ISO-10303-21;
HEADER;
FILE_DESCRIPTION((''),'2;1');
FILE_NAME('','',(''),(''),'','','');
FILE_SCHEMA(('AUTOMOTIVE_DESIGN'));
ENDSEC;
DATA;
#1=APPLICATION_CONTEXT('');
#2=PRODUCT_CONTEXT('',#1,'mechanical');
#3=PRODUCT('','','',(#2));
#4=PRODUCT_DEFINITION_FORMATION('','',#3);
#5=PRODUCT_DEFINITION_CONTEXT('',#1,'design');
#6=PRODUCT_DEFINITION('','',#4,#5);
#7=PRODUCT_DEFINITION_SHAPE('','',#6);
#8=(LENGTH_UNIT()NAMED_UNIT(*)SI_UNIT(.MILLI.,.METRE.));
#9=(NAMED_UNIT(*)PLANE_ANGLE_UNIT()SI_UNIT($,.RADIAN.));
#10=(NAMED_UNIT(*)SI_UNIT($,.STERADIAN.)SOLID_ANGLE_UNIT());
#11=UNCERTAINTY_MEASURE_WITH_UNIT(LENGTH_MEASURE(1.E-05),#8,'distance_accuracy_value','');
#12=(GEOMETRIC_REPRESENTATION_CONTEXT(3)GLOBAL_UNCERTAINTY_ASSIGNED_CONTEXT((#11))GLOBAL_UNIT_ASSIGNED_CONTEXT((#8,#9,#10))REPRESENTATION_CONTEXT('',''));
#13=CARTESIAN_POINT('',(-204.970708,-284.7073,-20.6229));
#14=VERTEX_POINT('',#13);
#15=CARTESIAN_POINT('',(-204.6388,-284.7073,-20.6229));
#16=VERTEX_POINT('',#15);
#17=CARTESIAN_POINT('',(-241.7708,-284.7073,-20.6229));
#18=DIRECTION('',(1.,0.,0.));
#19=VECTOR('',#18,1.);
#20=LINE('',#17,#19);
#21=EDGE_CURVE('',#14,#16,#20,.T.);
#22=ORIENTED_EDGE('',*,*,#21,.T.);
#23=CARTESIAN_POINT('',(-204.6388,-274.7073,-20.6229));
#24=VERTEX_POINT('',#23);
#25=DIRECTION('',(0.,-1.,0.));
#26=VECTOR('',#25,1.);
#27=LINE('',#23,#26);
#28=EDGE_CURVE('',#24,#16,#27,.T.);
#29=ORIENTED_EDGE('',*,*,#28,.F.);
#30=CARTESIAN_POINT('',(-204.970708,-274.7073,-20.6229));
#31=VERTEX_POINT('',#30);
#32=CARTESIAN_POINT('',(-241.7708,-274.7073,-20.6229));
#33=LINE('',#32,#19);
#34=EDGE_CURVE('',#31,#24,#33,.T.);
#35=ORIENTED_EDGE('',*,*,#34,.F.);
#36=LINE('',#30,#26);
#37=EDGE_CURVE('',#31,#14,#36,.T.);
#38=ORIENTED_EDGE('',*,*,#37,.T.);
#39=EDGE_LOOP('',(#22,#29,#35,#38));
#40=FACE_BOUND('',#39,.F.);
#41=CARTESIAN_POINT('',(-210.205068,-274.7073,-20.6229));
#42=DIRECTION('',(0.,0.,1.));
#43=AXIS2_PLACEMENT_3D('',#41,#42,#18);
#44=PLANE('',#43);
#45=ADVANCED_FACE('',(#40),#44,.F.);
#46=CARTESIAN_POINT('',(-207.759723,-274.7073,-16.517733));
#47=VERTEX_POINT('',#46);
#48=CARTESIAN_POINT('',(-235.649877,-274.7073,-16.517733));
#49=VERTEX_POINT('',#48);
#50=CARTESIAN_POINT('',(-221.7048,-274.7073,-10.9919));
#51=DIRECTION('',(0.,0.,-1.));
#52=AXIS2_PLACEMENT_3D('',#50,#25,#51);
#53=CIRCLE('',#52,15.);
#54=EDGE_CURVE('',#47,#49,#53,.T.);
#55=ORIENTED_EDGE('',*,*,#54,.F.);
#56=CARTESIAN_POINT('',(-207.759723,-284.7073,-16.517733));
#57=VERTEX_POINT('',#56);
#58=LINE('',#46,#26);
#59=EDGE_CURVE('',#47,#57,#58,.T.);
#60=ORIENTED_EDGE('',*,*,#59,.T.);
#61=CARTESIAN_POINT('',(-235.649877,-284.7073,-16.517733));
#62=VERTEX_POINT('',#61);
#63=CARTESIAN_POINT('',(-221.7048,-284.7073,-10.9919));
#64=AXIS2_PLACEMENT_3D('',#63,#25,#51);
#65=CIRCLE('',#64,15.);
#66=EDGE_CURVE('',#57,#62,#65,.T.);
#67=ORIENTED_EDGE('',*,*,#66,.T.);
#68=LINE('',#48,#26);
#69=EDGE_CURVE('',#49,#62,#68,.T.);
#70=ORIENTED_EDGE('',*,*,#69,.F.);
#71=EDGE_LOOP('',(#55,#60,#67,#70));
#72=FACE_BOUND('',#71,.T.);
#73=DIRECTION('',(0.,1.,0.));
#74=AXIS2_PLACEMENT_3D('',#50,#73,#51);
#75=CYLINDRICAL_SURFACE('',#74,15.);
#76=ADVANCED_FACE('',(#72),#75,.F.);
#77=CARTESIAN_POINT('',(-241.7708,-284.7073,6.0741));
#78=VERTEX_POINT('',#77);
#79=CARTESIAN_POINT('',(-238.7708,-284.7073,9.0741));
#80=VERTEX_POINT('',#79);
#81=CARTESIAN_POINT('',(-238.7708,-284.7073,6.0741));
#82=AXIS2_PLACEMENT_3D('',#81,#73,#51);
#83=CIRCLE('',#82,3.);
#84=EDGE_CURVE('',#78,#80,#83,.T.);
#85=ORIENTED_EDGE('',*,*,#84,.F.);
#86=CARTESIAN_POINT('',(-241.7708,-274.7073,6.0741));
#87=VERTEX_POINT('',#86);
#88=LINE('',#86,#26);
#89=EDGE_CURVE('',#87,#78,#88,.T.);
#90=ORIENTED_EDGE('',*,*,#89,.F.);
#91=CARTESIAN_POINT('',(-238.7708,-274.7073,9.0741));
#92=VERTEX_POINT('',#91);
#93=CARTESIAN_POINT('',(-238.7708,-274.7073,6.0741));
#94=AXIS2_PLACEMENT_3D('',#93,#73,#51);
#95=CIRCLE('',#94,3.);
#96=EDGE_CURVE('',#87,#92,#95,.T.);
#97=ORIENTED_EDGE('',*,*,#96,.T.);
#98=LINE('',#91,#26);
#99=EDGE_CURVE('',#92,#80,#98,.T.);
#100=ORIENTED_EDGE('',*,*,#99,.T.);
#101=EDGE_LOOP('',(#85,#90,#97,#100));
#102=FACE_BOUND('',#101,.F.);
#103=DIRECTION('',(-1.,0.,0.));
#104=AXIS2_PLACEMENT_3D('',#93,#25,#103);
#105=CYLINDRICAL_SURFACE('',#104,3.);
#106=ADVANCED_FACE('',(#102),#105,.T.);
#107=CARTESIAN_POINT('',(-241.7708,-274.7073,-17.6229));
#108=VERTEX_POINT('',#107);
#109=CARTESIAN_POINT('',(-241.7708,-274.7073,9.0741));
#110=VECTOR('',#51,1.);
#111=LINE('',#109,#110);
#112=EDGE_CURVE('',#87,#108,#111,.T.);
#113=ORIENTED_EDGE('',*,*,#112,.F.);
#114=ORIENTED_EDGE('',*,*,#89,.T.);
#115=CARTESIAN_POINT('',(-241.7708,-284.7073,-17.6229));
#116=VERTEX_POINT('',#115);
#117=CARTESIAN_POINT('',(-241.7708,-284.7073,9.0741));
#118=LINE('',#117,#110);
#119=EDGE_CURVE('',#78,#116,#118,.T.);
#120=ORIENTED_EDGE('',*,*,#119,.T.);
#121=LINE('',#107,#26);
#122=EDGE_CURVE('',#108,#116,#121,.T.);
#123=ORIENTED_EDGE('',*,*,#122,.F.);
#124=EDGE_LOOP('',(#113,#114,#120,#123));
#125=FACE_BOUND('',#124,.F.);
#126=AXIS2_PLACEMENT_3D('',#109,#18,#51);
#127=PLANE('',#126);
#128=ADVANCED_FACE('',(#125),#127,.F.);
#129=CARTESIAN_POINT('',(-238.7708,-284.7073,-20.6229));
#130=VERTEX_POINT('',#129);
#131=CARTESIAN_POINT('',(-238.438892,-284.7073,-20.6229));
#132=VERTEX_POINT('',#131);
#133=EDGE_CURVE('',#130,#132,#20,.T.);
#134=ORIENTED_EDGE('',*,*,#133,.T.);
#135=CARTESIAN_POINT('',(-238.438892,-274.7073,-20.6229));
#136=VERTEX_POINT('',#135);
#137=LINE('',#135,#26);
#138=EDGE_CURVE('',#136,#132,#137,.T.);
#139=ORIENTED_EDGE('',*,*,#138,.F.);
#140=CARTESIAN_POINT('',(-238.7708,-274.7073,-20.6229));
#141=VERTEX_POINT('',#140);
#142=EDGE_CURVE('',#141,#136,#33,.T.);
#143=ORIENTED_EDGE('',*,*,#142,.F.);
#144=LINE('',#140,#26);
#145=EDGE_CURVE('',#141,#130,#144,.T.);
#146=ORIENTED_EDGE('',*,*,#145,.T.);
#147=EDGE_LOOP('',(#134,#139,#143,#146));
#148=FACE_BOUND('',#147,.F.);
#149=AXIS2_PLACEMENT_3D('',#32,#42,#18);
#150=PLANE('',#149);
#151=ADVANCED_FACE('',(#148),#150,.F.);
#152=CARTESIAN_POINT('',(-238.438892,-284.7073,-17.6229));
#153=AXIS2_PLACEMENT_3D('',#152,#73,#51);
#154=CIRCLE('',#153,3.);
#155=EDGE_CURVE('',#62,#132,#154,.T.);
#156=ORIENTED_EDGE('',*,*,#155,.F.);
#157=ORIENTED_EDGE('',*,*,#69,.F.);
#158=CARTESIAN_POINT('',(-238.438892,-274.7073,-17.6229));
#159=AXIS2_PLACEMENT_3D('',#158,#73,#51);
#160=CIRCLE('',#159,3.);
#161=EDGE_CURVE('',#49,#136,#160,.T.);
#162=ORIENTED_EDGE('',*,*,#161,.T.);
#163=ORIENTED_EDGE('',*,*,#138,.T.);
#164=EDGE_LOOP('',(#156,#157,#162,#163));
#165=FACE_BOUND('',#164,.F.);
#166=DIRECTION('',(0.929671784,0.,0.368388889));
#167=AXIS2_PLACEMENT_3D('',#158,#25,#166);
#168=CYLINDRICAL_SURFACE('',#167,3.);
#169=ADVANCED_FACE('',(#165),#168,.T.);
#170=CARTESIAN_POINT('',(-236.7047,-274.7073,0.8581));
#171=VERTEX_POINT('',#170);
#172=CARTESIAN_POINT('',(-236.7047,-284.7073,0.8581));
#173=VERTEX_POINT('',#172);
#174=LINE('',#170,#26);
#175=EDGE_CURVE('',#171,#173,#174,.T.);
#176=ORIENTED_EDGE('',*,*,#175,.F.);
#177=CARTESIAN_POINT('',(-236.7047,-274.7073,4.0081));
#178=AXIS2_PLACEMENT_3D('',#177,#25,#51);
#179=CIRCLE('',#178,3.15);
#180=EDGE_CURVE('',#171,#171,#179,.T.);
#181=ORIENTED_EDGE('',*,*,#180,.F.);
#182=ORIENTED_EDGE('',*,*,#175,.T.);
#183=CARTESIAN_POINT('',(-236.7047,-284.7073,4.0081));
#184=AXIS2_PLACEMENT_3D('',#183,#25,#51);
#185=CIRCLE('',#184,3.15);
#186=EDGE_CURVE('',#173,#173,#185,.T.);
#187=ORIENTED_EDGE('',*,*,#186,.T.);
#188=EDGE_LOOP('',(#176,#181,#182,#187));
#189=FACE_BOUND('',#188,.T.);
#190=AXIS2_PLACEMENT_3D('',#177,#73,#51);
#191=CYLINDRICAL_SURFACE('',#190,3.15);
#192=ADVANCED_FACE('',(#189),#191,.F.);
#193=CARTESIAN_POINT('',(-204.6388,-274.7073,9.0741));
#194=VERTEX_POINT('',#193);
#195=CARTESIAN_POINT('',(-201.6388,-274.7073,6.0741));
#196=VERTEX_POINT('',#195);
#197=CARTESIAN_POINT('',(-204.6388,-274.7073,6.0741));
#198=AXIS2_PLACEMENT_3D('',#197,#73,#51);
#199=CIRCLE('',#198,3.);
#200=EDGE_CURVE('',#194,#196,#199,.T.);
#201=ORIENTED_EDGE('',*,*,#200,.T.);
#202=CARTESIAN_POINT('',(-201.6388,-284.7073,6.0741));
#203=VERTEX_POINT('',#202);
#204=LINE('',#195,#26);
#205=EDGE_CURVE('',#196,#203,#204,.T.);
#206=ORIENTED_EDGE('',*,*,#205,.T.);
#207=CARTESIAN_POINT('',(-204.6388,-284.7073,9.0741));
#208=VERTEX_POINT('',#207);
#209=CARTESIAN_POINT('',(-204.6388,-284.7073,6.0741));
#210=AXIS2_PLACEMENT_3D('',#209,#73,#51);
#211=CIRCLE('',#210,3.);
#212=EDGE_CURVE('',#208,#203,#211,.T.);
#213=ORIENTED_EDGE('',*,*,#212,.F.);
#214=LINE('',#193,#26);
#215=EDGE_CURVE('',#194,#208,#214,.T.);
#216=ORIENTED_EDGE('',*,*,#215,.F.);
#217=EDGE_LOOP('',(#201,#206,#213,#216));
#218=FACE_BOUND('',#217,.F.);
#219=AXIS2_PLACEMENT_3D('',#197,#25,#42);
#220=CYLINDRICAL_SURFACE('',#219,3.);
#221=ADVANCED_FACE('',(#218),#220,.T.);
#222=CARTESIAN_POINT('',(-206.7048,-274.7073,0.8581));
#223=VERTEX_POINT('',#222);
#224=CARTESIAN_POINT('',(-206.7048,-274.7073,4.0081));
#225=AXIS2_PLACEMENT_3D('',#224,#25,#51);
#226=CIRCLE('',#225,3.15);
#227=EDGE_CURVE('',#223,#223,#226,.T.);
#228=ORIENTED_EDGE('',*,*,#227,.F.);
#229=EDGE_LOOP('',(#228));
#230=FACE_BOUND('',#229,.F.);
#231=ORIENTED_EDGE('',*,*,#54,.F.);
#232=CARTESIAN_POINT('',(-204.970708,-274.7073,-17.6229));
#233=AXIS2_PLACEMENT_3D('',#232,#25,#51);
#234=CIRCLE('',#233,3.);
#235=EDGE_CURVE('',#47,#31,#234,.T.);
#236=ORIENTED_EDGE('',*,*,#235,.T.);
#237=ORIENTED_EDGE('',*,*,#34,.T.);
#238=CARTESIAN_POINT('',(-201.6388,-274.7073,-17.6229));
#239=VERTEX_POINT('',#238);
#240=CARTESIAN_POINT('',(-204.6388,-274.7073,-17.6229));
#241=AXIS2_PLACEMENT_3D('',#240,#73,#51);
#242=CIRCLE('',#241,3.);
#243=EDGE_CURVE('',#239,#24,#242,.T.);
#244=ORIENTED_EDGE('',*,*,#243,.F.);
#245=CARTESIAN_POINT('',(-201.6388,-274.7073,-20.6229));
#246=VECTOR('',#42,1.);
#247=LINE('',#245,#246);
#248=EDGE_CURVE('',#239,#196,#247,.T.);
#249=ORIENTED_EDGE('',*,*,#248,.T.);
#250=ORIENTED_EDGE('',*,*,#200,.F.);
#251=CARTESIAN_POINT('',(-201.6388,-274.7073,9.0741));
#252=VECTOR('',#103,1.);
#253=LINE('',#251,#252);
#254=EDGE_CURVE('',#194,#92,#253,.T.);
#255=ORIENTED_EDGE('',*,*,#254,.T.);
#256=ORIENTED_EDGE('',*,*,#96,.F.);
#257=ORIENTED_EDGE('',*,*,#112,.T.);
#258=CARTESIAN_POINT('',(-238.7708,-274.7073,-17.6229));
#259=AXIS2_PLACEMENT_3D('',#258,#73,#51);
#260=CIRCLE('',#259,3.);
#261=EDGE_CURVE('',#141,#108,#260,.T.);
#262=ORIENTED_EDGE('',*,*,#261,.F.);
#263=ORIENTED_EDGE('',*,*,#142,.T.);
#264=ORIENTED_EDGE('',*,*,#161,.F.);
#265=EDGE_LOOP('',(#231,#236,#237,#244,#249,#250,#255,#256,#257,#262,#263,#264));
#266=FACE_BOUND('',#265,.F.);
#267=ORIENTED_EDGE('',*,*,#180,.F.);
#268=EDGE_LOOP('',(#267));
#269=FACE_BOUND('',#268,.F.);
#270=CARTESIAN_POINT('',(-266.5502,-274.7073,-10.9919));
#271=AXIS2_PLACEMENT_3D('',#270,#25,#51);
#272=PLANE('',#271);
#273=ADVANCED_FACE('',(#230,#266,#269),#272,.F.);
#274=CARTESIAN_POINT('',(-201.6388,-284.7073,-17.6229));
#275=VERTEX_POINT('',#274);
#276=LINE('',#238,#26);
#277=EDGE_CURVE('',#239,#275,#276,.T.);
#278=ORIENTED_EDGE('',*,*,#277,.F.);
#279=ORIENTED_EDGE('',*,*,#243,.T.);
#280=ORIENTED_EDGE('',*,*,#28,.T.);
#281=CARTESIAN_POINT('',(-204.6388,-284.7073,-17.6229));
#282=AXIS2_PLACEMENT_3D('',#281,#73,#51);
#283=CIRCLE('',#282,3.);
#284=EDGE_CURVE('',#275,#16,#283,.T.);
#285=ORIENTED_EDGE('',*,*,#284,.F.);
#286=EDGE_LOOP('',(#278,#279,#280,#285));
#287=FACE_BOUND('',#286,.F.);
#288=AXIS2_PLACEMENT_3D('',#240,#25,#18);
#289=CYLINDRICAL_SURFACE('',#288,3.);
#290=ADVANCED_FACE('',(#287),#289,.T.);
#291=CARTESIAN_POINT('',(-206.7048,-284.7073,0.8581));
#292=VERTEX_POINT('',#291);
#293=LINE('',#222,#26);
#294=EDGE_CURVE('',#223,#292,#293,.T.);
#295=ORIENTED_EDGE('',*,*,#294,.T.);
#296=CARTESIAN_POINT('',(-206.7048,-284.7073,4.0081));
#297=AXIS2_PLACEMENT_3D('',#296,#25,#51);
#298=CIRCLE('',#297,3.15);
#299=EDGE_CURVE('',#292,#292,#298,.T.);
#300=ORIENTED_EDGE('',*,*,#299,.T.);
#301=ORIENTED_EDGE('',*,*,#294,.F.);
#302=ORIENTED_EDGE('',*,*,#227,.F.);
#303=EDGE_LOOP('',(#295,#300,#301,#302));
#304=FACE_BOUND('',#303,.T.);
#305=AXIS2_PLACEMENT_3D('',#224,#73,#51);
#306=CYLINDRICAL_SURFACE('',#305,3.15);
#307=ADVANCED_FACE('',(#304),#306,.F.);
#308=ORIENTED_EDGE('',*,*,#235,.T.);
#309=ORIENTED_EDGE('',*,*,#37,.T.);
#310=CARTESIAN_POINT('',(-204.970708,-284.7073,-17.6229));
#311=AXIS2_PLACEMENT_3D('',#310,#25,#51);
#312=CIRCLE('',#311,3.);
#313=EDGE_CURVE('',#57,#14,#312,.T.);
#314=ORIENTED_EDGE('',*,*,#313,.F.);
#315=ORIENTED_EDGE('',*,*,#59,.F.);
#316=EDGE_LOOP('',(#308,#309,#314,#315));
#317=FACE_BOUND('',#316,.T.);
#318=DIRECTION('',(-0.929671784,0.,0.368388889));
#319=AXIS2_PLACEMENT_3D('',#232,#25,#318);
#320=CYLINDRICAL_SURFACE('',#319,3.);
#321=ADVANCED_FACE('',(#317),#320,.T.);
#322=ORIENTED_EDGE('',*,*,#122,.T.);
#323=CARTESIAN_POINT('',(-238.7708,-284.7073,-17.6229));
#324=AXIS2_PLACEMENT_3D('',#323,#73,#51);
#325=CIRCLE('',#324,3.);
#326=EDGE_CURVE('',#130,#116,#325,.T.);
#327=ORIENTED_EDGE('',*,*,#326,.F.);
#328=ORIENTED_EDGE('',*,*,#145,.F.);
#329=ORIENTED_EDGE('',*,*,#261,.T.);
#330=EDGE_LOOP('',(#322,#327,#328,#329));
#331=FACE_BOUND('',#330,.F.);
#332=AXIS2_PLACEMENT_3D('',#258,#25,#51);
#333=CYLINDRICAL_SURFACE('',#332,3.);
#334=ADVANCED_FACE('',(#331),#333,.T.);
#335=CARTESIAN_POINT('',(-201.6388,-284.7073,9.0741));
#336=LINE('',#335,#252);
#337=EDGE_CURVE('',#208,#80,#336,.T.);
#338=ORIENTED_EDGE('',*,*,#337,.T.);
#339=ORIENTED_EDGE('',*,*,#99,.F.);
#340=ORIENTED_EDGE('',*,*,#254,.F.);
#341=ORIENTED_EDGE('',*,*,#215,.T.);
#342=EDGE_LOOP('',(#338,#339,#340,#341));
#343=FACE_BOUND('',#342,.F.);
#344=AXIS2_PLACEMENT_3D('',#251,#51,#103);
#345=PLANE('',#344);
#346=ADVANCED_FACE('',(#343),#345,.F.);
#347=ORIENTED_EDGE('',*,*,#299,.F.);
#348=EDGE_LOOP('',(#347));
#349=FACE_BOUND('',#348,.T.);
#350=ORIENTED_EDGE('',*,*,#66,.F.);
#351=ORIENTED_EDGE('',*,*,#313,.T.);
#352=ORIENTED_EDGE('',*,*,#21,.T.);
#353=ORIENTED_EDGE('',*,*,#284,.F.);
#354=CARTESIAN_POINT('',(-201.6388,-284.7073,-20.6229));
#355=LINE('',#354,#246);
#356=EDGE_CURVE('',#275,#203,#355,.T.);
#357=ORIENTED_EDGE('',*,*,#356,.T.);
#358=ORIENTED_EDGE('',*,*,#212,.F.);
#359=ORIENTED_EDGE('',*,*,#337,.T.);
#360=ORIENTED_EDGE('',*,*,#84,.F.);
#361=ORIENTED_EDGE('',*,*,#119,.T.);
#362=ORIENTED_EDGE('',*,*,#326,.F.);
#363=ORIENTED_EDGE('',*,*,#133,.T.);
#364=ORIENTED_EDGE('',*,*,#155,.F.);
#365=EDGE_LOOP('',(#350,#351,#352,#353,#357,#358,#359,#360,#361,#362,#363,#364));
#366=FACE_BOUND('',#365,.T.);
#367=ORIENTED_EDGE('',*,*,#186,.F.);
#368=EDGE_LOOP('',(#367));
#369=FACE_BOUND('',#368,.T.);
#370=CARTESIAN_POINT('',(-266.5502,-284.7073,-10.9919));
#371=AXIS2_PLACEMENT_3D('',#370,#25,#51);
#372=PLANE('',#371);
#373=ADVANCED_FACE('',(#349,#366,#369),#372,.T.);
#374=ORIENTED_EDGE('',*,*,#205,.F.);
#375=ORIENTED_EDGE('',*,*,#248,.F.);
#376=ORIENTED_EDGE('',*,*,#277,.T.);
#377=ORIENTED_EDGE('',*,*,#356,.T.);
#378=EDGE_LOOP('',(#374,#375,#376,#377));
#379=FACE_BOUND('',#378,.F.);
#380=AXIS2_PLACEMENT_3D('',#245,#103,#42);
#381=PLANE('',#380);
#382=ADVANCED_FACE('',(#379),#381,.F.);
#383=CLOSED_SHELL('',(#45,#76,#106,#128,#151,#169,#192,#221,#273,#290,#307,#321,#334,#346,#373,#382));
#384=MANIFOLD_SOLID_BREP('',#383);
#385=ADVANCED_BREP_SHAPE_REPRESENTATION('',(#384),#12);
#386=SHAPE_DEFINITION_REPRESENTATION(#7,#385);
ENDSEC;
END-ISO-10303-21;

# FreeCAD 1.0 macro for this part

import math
import FreeCAD as App
import Part
import Sketcher
from FreeCAD import Vector
Q = App.Units.Quantity


def edges_at(feature, points):
    """Names of the edges that pass closest to the given points."""
    edges = feature.Shape.Edges
    near = lambda p: min(range(len(edges)), key=lambda i: edges[i].distToShape(Part.Vertex(*p))[0])
    return sorted({f"Edge{near(p) + 1}" for p in points})

doc = App.newDocument("Part")
params = doc.addObject("Spreadsheet::Sheet", "Params")
for row, (alias, value) in enumerate([
    ("sketch1_radius", "15 mm"),
    ("sketch1_diameter", "6.3 mm"),
    ("pad1_length", "10 mm"),
    ("fillet_radius", "3 mm"),
], start=1):
    params.set(f"A{row}", alias)
    params.set(f"B{row}", "=" + value)
    params.setAlias(f"B{row}", alias)

body = doc.addObject("PartDesign::Body", "Body")

# Sketch on XZ plane
sketch1 = body.newObject("Sketcher::SketchObject", "Sketch")
sketch1.AttachmentSupport = (doc.getObject("XZ_Plane"), [""])
sketch1.MapMode = "FlatFace"
sketch1.AttachmentOffset = App.Placement(Vector(0, 0, 274.7073), App.Rotation())
sketch1.addGeometry([
    Part.ArcOfCircle(Part.Circle(Vector(-221.7, -11, 0), Vector(0, 0, 1), 15), math.radians(-40), math.radians(220)),  # 0
    Part.LineSegment(Vector(-210.2, -20.6, 0), Vector(-201.6, -20.6, 0)),  # 1
    Part.LineSegment(Vector(-201.6, -20.6, 0), Vector(-201.6, 9.1, 0)),  # 2
    Part.LineSegment(Vector(-201.6, 9.1, 0), Vector(-241.8, 9.1, 0)),  # 3
    Part.LineSegment(Vector(-241.8, 9.1, 0), Vector(-241.8, -20.6, 0)),  # 4
    Part.LineSegment(Vector(-241.8, -20.6, 0), Vector(-233.2, -20.6, 0)),  # 5
    Part.Circle(Vector(-236.7, 4, 0), Vector(0, 0, 1), 3.1),  # 6
    Part.Circle(Vector(-206.7, 4, 0), Vector(0, 0, 1), 3.1),  # 7
], False)
sketch1.addConstraint([
    Sketcher.Constraint("Coincident", 0, 1, 1, 1),
    Sketcher.Constraint("Coincident", 1, 2, 2, 1),
    Sketcher.Constraint("Coincident", 2, 2, 3, 1),
    Sketcher.Constraint("Coincident", 3, 2, 4, 1),
    Sketcher.Constraint("Coincident", 4, 2, 5, 1),
    Sketcher.Constraint("Coincident", 5, 2, 0, 2),
    Sketcher.Constraint("Horizontal", 1),
    Sketcher.Constraint("Vertical", 2),
    Sketcher.Constraint("Horizontal", 3),
    Sketcher.Constraint("Vertical", 4),
    Sketcher.Constraint("Horizontal", 5),
    Sketcher.Constraint("Equal", 6, 7),
    Sketcher.Constraint("Horizontal", 6, 3, 7, 3),
    Sketcher.Constraint("Horizontal", 1, 2, 4, 2),
    Sketcher.Constraint("Equal", 1, 5),
    Sketcher.Constraint("Radius", 0, Q("15 mm")),
    Sketcher.Constraint("Diameter", 6, Q("6.3 mm")),
    Sketcher.Constraint("DistanceX", 6, 3, 7, 3, Q("30 mm")),
    Sketcher.Constraint("DistanceX", 6, 3, 0, 3, Q("15 mm")),
    Sketcher.Constraint("DistanceY", 0, 3, 6, 3, Q("15 mm")),
    Sketcher.Constraint("DistanceX", 3, 2, 3, 1, Q("40.132 mm")),
    Sketcher.Constraint("DistanceY", 2, 1, 2, 2, Q("29.697 mm")),
    Sketcher.Constraint("DistanceX", 1, 1, 1, 2, Q("8.5663 mm")),
    Sketcher.Constraint("DistanceY", 0, 3, -1, 1, Q("10.992 mm")),
    Sketcher.Constraint("DistanceX", 0, 1, -1, 1, Q("210.205 mm")),
])
sketch1.setExpression("Constraints[15]", "Params.sketch1_radius")
sketch1.setExpression("Constraints[16]", "Params.sketch1_diameter")
pad1 = body.newObject("PartDesign::Pad", "Pad")
pad1.Profile = sketch1
pad1.setExpression("Length", "Params.pad1_length")
doc.recompute()

fillet = body.newObject("PartDesign::Fillet", "Fillet")
fillet.Base = (pad1, edges_at(pad1, [
    (-241.771, -279.707, 9.074),
    (-201.639, -279.707, 9.074),
    (-241.771, -279.707, -20.623),
    (-201.639, -279.707, -20.623),
    (-210.205, -279.707, -20.623),
    (-233.204, -279.707, -20.623),
]))
fillet.setExpression("Radius", "Params.fillet_radius")

doc.recompute()
